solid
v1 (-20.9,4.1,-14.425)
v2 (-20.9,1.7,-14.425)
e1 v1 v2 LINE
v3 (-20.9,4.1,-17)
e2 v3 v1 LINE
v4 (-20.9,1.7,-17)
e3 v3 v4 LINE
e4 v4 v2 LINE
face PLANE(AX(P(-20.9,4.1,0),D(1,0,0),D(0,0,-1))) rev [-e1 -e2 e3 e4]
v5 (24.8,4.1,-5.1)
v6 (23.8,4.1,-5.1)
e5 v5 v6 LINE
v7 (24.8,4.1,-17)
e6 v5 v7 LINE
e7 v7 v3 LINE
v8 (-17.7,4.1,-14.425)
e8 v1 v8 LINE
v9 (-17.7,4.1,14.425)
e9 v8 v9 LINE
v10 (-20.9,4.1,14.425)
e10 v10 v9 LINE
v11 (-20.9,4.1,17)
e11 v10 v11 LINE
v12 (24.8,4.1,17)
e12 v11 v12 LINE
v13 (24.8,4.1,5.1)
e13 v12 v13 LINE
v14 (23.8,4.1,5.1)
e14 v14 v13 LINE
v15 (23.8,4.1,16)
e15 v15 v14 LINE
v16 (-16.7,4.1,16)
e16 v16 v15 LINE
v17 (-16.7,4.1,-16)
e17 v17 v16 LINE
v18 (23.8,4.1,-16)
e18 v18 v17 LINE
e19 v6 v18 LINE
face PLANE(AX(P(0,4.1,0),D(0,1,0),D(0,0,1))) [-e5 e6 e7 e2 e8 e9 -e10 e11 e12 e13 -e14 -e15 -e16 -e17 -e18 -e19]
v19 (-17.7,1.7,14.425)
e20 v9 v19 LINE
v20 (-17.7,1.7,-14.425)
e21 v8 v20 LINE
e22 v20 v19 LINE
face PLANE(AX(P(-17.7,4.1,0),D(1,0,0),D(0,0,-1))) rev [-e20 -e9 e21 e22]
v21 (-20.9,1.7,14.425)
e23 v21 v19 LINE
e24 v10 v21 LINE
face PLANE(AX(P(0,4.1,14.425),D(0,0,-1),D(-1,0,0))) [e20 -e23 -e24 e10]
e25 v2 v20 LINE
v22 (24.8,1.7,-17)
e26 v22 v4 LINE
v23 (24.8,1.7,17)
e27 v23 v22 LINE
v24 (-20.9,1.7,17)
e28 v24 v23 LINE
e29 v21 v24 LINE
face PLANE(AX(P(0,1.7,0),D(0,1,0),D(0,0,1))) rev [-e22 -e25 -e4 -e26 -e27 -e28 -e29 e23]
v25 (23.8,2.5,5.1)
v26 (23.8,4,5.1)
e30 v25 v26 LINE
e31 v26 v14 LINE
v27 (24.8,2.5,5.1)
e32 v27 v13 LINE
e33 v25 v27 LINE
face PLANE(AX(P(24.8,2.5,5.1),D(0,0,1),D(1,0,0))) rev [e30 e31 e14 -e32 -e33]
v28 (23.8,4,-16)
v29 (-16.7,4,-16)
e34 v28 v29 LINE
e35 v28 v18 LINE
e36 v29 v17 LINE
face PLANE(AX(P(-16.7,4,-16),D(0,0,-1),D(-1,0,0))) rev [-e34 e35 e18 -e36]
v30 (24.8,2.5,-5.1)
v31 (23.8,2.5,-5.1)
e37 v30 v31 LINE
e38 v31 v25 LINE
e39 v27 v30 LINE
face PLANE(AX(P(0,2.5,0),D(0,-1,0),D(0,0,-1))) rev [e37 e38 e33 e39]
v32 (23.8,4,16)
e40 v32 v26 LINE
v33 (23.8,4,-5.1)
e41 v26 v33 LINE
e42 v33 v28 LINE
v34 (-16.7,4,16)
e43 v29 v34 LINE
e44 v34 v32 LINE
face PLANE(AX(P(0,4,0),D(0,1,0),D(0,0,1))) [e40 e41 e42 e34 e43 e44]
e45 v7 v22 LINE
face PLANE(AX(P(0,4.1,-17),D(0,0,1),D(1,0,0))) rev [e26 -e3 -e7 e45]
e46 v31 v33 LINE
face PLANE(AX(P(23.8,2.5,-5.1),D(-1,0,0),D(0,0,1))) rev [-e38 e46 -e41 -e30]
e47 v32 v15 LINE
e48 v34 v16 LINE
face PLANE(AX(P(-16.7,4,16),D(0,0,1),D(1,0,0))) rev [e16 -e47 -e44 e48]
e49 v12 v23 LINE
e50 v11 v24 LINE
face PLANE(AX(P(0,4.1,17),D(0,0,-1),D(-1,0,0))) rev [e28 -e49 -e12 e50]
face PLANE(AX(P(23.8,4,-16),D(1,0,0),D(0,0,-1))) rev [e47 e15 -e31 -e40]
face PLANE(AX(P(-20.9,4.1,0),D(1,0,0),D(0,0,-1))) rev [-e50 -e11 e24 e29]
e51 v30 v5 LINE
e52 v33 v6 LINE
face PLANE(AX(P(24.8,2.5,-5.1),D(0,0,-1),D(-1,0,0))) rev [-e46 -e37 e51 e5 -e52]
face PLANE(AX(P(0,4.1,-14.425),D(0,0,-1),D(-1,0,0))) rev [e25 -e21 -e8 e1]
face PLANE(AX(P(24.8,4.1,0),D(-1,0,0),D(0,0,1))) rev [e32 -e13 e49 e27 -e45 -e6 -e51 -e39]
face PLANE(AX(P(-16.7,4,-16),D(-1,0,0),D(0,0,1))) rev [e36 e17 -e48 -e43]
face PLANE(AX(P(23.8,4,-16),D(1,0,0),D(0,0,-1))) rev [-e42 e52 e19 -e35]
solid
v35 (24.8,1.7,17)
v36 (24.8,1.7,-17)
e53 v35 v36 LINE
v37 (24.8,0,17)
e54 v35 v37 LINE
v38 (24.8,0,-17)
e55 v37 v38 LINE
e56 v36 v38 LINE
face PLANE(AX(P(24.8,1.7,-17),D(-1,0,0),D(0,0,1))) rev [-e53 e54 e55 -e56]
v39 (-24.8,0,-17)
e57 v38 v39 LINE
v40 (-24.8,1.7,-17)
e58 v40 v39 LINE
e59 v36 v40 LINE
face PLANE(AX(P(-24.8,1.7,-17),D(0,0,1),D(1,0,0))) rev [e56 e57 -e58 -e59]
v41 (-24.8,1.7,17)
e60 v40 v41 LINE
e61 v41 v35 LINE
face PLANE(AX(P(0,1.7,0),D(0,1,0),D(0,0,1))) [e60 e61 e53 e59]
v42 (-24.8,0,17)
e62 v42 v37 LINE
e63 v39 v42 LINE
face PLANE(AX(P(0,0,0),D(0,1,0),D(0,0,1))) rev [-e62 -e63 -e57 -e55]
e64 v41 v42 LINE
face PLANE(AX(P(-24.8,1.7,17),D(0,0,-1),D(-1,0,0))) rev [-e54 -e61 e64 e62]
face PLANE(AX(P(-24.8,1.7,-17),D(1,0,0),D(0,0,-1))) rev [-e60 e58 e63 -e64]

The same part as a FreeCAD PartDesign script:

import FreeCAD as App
import Part
import Sketcher


def add_polygon(sketch, points):
    """Adds a closed chain of lines whose ends are joined by coincident constraints."""
    first, n = sketch.GeometryCount, len(points)
    for a, b in zip(points, points[1:] + points[:1]):
        sketch.addGeometry(Part.LineSegment(App.Vector(*a, 0), App.Vector(*b, 0)), False)
    for i in range(n):
        sketch.addConstraint(Sketcher.Constraint("Coincident", first + i, 2, first + (i + 1) % n, 1))

doc = App.newDocument("Part")
body = doc.addObject("PartDesign::Body", "Body")

# Sketch on XZ plane
sketch1 = doc.addObject("Sketcher::SketchObject", "Sketch")
body.addObject(sketch1)
sketch1.AttachmentSupport = (doc.XZ_Plane, [""])
sketch1.MapMode = "FlatFace"
add_polygon(sketch1, [(-25, -17), (-25, 17), (25, 17), (25, -17)])  # lines 0-3
sketch1.addConstraint([
    Sketcher.Constraint("Vertical", 0),
    Sketcher.Constraint("Horizontal", 1),
    Sketcher.Constraint("Vertical", 2),
    Sketcher.Constraint("Horizontal", 3),
    Sketcher.Constraint("Symmetric", 0, 2, 2, 2, -1, 1),
    Sketcher.Constraint("DistanceY", 0, 1, 0, 2, 34.0),
    Sketcher.Constraint("DistanceX", 1, 1, 1, 2, 49.6),
])
pad1 = doc.addObject("PartDesign::Pad", "Pad")
body.addObject(pad1)
pad1.Profile = sketch1
pad1.Length = 1.7
pad1.Reversed = True
body2 = doc.addObject("PartDesign::Body", "Body001")

# Sketch on XZ plane
sketch2 = doc.addObject("Sketcher::SketchObject", "Sketch001")
body2.addObject(sketch2)
sketch2.AttachmentSupport = (doc.getObject("XZ_Plane001"), [""])
sketch2.MapMode = "FlatFace"
sketch2.AttachmentOffset = App.Placement(App.Vector(0, 0, -1.7), App.Rotation())
add_polygon(sketch2, [(24.8, 17), (24.8, -17), (-20.9, -17), (-20.9, -14.4), (-17.7, -14.4), (-17.7, 14.4), (-20.9, 14.4), (-20.9, 17)])  # lines 0-7
sketch2.addConstraint([
    Sketcher.Constraint("Vertical", 0),
    Sketcher.Constraint("Horizontal", 1),
    Sketcher.Constraint("Vertical", 2),
    Sketcher.Constraint("Horizontal", 3),
    Sketcher.Constraint("Vertical", 4),
    Sketcher.Constraint("Horizontal", 5),
    Sketcher.Constraint("Vertical", 6),
    Sketcher.Constraint("Horizontal", 7),
    Sketcher.Constraint("Symmetric", 2, 2, 5, 2, -1),
    Sketcher.Constraint("Equal", 2, 6),
    Sketcher.Constraint("DistanceY", 0, 2, 0, 1, 34.0),
    Sketcher.Constraint("DistanceX", 1, 2, 1, 1, 45.7),
    Sketcher.Constraint("DistanceX", 3, 1, 3, 2, 3.2),
    Sketcher.Constraint("DistanceY", 4, 1, 4, 2, 28.85),
    Sketcher.Constraint("DistanceX", -1, 1, 0, 2, 24.8),
])
pad2 = doc.addObject("PartDesign::Pad", "Pad001")
body2.addObject(pad2)
pad2.Profile = sketch2
pad2.Length = 2.4
pad2.Reversed = True

# Sketch on XZ plane
sketch3 = doc.addObject("Sketcher::SketchObject", "Sketch002")
body2.addObject(sketch3)
sketch3.AttachmentSupport = (doc.getObject("XZ_Plane001"), [""])
sketch3.MapMode = "FlatFace"
sketch3.AttachmentOffset = App.Placement(App.Vector(0, 0, -4.1), App.Rotation())
add_polygon(sketch3, [(-17, -16), (-17, 16), (24, 16), (24, -16)])  # lines 0-3
sketch3.addConstraint([
    Sketcher.Constraint("Vertical", 0),
    Sketcher.Constraint("Horizontal", 1),
    Sketcher.Constraint("Vertical", 2),
    Sketcher.Constraint("Horizontal", 3),
    Sketcher.Constraint("DistanceY", 0, 1, 0, 2, 32.0),
    Sketcher.Constraint("DistanceX", 1, 1, 1, 2, 40.5),
    Sketcher.Constraint("DistanceY", -1, 1, 0, 2, 16.0),
    Sketcher.Constraint("DistanceX", 0, 2, -1, 1, 16.7),
])
pocket1 = doc.addObject("PartDesign::Pocket", "Pocket")
body2.addObject(pocket1)
pocket1.Profile = sketch3
pocket1.Length = 0.1
pocket1.Reversed = True

# Sketch on XZ plane
sketch4 = doc.addObject("Sketcher::SketchObject", "Sketch003")
body2.addObject(sketch4)
sketch4.AttachmentSupport = (doc.getObject("XZ_Plane001"), [""])
sketch4.MapMode = "FlatFace"
sketch4.AttachmentOffset = App.Placement(App.Vector(0, 0, -4.1), App.Rotation())
add_polygon(sketch4, [(23.8, -5.1), (23.8, 5.1), (24.8, 5.1), (24.8, -5.1)])  # lines 0-3
sketch4.addConstraint([
    Sketcher.Constraint("Vertical", 0),
    Sketcher.Constraint("Horizontal", 1),
    Sketcher.Constraint("Vertical", 2),
    Sketcher.Constraint("Horizontal", 3),
    Sketcher.Constraint("DistanceX", 1, 1, 1, 2, 1.0),
    Sketcher.Constraint("DistanceY", 0, 1, 0, 2, 10.2),
    Sketcher.Constraint("DistanceX", -1, 1, 0, 2, 23.8),
    Sketcher.Constraint("DistanceY", -1, 1, 0, 2, 5.1),
])
pocket2 = doc.addObject("PartDesign::Pocket", "Pocket001")
body2.addObject(pocket2)
pocket2.Profile = sketch4
pocket2.Length = 1.6
pocket2.Reversed = True

doc.recompute()
